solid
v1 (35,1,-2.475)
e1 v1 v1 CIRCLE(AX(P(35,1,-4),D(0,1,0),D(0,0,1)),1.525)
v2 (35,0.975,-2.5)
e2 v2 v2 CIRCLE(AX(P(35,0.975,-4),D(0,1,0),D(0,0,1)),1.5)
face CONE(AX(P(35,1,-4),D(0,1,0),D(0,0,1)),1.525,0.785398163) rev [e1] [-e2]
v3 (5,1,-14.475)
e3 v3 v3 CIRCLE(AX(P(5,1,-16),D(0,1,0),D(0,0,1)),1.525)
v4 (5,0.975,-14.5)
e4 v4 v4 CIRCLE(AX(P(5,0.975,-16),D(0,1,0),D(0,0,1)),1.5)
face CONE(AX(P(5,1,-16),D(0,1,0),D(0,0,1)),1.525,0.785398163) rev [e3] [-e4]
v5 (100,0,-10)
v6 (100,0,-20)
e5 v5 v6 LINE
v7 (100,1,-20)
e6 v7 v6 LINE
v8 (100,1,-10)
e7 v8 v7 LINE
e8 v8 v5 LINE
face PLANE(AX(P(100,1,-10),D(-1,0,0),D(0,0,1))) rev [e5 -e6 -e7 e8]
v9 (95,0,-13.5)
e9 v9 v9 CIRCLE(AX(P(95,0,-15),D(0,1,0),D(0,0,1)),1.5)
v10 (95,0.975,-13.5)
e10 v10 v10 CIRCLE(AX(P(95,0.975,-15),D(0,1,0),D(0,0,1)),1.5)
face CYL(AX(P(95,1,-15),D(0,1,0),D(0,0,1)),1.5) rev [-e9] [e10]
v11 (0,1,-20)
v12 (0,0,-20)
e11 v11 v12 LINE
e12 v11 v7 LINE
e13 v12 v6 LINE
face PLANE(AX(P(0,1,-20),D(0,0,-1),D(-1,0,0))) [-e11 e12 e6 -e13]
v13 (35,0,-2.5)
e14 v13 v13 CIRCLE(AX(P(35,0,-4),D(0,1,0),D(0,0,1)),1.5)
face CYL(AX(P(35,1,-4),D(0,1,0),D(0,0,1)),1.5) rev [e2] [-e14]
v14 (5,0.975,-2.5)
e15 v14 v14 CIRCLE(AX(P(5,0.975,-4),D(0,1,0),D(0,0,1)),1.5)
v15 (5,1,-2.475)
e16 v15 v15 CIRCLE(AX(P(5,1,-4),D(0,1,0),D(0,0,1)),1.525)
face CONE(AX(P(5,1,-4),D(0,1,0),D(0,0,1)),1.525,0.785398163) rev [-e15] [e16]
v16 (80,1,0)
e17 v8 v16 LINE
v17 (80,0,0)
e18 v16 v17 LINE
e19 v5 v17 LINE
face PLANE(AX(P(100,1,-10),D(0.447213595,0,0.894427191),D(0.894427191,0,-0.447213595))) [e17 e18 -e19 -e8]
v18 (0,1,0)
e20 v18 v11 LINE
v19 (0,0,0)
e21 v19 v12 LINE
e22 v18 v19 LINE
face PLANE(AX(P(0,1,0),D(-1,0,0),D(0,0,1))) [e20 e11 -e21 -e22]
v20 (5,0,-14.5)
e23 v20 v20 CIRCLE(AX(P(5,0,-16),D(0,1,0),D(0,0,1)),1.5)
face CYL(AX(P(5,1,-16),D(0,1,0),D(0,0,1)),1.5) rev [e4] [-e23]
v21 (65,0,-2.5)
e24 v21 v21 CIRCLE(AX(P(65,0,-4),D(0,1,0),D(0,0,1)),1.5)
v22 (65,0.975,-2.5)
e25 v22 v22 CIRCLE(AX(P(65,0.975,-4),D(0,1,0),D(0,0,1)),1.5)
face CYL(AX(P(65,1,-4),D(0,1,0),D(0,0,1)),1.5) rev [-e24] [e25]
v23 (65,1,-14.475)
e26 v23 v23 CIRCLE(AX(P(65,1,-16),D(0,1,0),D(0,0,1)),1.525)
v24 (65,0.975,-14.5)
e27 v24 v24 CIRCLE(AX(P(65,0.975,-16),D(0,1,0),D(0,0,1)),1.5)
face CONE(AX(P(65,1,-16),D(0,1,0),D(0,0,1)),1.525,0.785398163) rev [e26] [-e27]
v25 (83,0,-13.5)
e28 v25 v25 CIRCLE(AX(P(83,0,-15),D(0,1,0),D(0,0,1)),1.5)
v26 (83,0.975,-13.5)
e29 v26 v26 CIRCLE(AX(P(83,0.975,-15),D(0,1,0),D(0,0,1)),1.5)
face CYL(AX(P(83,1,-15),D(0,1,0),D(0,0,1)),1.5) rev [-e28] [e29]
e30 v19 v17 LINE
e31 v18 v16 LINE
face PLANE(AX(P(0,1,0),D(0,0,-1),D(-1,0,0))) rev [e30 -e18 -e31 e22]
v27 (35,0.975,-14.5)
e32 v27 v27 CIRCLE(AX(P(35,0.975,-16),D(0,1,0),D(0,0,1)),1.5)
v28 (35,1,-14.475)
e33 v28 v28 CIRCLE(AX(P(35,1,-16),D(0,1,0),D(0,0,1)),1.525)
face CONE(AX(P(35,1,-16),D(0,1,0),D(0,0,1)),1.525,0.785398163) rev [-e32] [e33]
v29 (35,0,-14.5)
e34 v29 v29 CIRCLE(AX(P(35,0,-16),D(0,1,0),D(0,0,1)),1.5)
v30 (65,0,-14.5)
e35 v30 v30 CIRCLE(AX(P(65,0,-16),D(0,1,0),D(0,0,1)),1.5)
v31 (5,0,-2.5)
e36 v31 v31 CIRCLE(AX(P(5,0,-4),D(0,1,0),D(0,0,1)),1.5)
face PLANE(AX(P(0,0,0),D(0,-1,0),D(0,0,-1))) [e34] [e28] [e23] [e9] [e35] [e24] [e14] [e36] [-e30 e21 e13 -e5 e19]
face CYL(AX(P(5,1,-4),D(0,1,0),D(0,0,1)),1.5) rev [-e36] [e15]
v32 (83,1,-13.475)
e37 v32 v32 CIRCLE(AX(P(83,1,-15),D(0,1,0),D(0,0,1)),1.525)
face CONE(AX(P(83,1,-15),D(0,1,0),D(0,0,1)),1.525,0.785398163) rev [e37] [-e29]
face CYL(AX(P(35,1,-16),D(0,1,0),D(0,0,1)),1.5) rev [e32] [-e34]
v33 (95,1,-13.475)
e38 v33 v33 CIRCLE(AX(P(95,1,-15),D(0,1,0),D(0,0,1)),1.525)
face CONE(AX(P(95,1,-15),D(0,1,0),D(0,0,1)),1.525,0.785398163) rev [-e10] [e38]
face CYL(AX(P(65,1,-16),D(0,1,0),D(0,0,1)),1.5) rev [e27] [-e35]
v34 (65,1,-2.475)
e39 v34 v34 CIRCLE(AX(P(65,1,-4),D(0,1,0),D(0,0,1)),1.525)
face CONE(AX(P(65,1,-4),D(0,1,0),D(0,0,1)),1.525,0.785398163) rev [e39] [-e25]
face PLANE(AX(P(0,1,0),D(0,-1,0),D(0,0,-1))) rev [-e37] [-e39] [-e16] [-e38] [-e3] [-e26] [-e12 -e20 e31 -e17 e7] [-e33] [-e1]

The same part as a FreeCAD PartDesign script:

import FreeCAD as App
import Part
import Sketcher
Q = App.Units.Quantity

doc = App.newDocument("Part")
body = doc.addObject("PartDesign::Body", "Body")

sketch1 = body.newObject("Sketcher::SketchObject", "Sketch")
sketch1.AttachmentSupport = (doc.getObject("XZ_Plane"), [""])
sketch1.MapMode = "FlatFace"
sketch1.addGeometry([
    Part.LineSegment(App.Vector(80, 0, 0), App.Vector(100, -10, 0)),
    Part.LineSegment(App.Vector(100, -10, 0), App.Vector(100, -20, 0)),
    Part.LineSegment(App.Vector(100, -20, 0), App.Vector(0, -20, 0)),
    Part.LineSegment(App.Vector(0, -20, 0), App.Vector(0, 0, 0)),
    Part.LineSegment(App.Vector(0, 0, 0), App.Vector(80, 0, 0)),
], False)
sketch1.addConstraint([
    Sketcher.Constraint("Coincident", 0, 2, 1, 1),
    Sketcher.Constraint("Coincident", 1, 2, 2, 1),
    Sketcher.Constraint("Coincident", 2, 2, 3, 1),
    Sketcher.Constraint("Coincident", 3, 2, 4, 1),
    Sketcher.Constraint("Coincident", 4, 2, 0, 1),
    Sketcher.Constraint("Vertical", 1),
    Sketcher.Constraint("Horizontal", 2),
    Sketcher.Constraint("Vertical", 3),
    Sketcher.Constraint("Horizontal", 4),
    Sketcher.Constraint("Coincident", 3, 2, -1, 1),
    Sketcher.Constraint("DistanceX", 2, 2, 2, 1, 100.0),
    Sketcher.Constraint("DistanceX", 4, 1, 4, 2, 80.0),
    Sketcher.Constraint("DistanceY", 1, 2, 1, 1, 10.0),
    Sketcher.Constraint("DistanceY", 3, 1, 3, 2, 20.0),
])
pad1 = body.newObject("PartDesign::Pad", "Pad")
pad1.Profile = sketch1
pad1.Length = 1
pad1.Reversed = True

sketch2 = body.newObject("Sketcher::SketchObject", "Sketch001")
sketch2.AttachmentSupport = (doc.getObject("YZ_Plane"), [""])
sketch2.MapMode = "FlatFace"
sketch2.AttachmentOffset = App.Placement(App.Vector(0, 0, 5), App.Rotation())
sketch2.addGeometry([
    Part.LineSegment(App.Vector(0, -16, 0), App.Vector(1, -16, 0)),
    Part.LineSegment(App.Vector(1, -16, 0), App.Vector(1, -14.475, 0)),
    Part.LineSegment(App.Vector(1, -14.475, 0), App.Vector(0.975, -14.5, 0)),
    Part.LineSegment(App.Vector(0.975, -14.5, 0), App.Vector(0, -14.5, 0)),
    Part.LineSegment(App.Vector(0, -14.5, 0), App.Vector(0, -16, 0)),
], False)
sketch2.addGeometry(Part.LineSegment(App.Vector(1, -16, 0), App.Vector(0, -16, 0)), True)
sketch2.addConstraint([
    Sketcher.Constraint("Coincident", 0, 2, 1, 1),
    Sketcher.Constraint("Coincident", 1, 2, 2, 1),
    Sketcher.Constraint("Coincident", 2, 2, 3, 1),
    Sketcher.Constraint("Coincident", 3, 2, 4, 1),
    Sketcher.Constraint("Coincident", 4, 2, 0, 1),
    Sketcher.Constraint("Horizontal", 0),
    Sketcher.Constraint("Vertical", 1),
    Sketcher.Constraint("Horizontal", 3),
    Sketcher.Constraint("Vertical", 4),
    Sketcher.Constraint("Horizontal", 5),
    Sketcher.Constraint("Coincident", 5, 1, 0, 2),
    Sketcher.Constraint("PointOnObject", 3, 2, -2),
    Sketcher.Constraint("PointOnObject", 5, 2, -2),
    Sketcher.Constraint("DistanceX", 0, 1, 0, 2, 1.0),
    Sketcher.Constraint("Angle", 2, Q("-135 deg")),
    Sketcher.Constraint("DistanceY", 4, 2, 4, 1, 1.5),
    Sketcher.Constraint("DistanceY", 0, 2, -1, 1, 16.0),
    Sketcher.Constraint("DistanceX", 3, 2, 3, 1, 0.975),
])
groove = body.newObject("PartDesign::Groove", "Groove")
groove.Profile = sketch2
groove.ReferenceAxis = (sketch2, ["Axis0"])
groove.Angle = 360
doc.recompute()

linearpattern = body.newObject("PartDesign::LinearPattern", "LinearPattern")
linearpattern.Originals = [groove]
linearpattern.Direction = (doc.getObject("Z_Axis"), [""])
linearpattern.Mode = "offset"
linearpattern.Offset = 12
linearpattern.Occurrences = 2
body.Tip = linearpattern
doc.recompute()

linearpattern2 = body.newObject("PartDesign::LinearPattern", "LinearPattern001")
linearpattern2.Originals = [groove]
linearpattern2.Direction = (doc.getObject("X_Axis"), [""])
linearpattern2.Mode = "offset"
linearpattern2.Offset = 30
linearpattern2.Occurrences = 2
body.Tip = linearpattern2
doc.recompute()

linearpattern3 = body.newObject("PartDesign::LinearPattern", "LinearPattern002")
linearpattern3.Originals = [groove]
linearpattern3.Direction = (doc.getObject("X_Axis"), [""])
linearpattern3.Mode = "offset"
linearpattern3.Offset = 60
linearpattern3.Occurrences = 2
body.Tip = linearpattern3
doc.recompute()

datumline = body.newObject("PartDesign::Line", "DatumLine")
datumline.Placement = App.Placement(App.Vector(0, 0, 0), App.Rotation(App.Vector(0, 0, 1), App.Vector(0.928476691, 0, 0.371390676)))
linearpattern4 = body.newObject("PartDesign::LinearPattern", "LinearPattern003")
linearpattern4.Originals = [groove]
linearpattern4.Direction = (datumline, [""])
linearpattern4.Mode = "offset"
linearpattern4.Offset = 32.310989
linearpattern4.Occurrences = 2
body.Tip = linearpattern4
doc.recompute()

datumline2 = body.newObject("PartDesign::Line", "DatumLine001")
datumline2.Placement = App.Placement(App.Vector(0, 0, 0), App.Rotation(App.Vector(0, 0, 1), App.Vector(0.980580676, 0, 0.196116135)))
linearpattern5 = body.newObject("PartDesign::LinearPattern", "LinearPattern004")
linearpattern5.Originals = [groove]
linearpattern5.Direction = (datumline2, [""])
linearpattern5.Mode = "offset"
linearpattern5.Offset = 61.188234
linearpattern5.Occurrences = 2
body.Tip = linearpattern5
doc.recompute()

datumline3 = body.newObject("PartDesign::Line", "DatumLine002")
datumline3.Placement = App.Placement(App.Vector(0, 0, 0), App.Rotation(App.Vector(0, 0, 1), App.Vector(0.999917827, 0, 0.012819459)))
linearpattern6 = body.newObject("PartDesign::LinearPattern", "LinearPattern005")
linearpattern6.Originals = [groove]
linearpattern6.Direction = (datumline3, [""])
linearpattern6.Mode = "offset"
linearpattern6.Offset = 78.00641
linearpattern6.Occurrences = 2
body.Tip = linearpattern6
doc.recompute()

datumline4 = body.newObject("PartDesign::Line", "DatumLine003")
datumline4.Placement = App.Placement(App.Vector(0, 0, 0), App.Rotation(App.Vector(0, 0, 1), App.Vector(0.999938277, 0, 0.011110425)))
linearpattern7 = body.newObject("PartDesign::LinearPattern", "LinearPattern006")
linearpattern7.Originals = [groove]
linearpattern7.Direction = (datumline4, [""])
linearpattern7.Mode = "offset"
linearpattern7.Offset = 90.005555
linearpattern7.Occurrences = 2
body.Tip = linearpattern7

doc.recompute()
